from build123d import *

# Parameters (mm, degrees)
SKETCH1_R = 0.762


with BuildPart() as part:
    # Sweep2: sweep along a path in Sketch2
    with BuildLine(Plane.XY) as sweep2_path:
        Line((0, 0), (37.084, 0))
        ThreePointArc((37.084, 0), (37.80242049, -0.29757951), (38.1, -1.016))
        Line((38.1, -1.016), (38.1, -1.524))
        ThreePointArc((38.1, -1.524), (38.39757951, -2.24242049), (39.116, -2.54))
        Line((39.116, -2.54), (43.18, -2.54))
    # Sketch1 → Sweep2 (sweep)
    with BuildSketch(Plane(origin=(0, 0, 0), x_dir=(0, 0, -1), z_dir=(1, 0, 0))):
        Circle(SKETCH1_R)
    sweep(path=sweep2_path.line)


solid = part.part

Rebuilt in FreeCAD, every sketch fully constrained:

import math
import FreeCAD as App
import Part
import Sketcher
Q = App.Units.Quantity

doc = App.newDocument("Part")
body = doc.addObject("PartDesign::Body", "Body")

# Sketch on YZ plane
sketch1 = body.newObject("Sketcher::SketchObject", "Sketch")
sketch1.AttachmentSupport = (doc.getObject("YZ_Plane"), [""])
sketch1.MapMode = "FlatFace"
sketch1.addGeometry(Part.Circle(App.Vector(0, 0, 0), App.Vector(0, 0, 1), 0.762), False)
sketch1.addConstraint([
    Sketcher.Constraint("Coincident", 0, 3, -1, 1),
    Sketcher.Constraint("Diameter", 0, Q("0.06 in")),
])

# Sketch on XY plane
sketch2 = body.newObject("Sketcher::SketchObject", "Sketch001")
sketch2.AttachmentSupport = (doc.getObject("XY_Plane"), [""])
sketch2.MapMode = "FlatFace"
sketch2.addGeometry([
    Part.LineSegment(App.Vector(0, 0, 0), App.Vector(37.084, 0, 0)),  # 0
    Part.ArcOfCircle(Part.Circle(App.Vector(37.084, -1.016, 0), App.Vector(0, 0, 1), 1.016), math.radians(0), math.radians(90)),  # 1
    Part.LineSegment(App.Vector(38.1, -1.016, 0), App.Vector(38.1, -1.524, 0)),  # 2
    Part.ArcOfCircle(Part.Circle(App.Vector(39.116, -1.524, 0), App.Vector(0, 0, 1), 1.016), math.radians(180), math.radians(270)),  # 3
    Part.LineSegment(App.Vector(39.116, -2.54, 0), App.Vector(43.18, -2.54, 0)),  # 4
], False)
sketch2.addConstraint([
    Sketcher.Constraint("Tangent", 0, 2, 1, 2),
    Sketcher.Constraint("Tangent", 1, 1, 2, 1),
    Sketcher.Constraint("Tangent", 2, 2, 3, 1),
    Sketcher.Constraint("Tangent", 3, 2, 4, 1),
    Sketcher.Constraint("Horizontal", 0),
    Sketcher.Constraint("Vertical", 2),
    Sketcher.Constraint("Horizontal", 4),
    Sketcher.Constraint("Coincident", 0, 1, -1, 1),
    Sketcher.Constraint("Equal", 1, 3),
    Sketcher.Constraint("Radius", 1, Q("0.04 in")),
    Sketcher.Constraint("DistanceX", 0, 1, 0, 2, Q("1.46 in")),
    Sketcher.Constraint("DistanceX", 4, 1, 4, 2, Q("0.16 in")),
    Sketcher.Constraint("DistanceY", 2, 2, 2, 1, Q("0.02 in")),
])
doc.recompute()

additivepipe = body.newObject("PartDesign::AdditivePipe", "AdditivePipe")
additivepipe.Profile = sketch1
additivepipe.Spine = (sketch2, ["Edge1", "Edge2", "Edge3", "Edge4", "Edge5"])

doc.recompute()
